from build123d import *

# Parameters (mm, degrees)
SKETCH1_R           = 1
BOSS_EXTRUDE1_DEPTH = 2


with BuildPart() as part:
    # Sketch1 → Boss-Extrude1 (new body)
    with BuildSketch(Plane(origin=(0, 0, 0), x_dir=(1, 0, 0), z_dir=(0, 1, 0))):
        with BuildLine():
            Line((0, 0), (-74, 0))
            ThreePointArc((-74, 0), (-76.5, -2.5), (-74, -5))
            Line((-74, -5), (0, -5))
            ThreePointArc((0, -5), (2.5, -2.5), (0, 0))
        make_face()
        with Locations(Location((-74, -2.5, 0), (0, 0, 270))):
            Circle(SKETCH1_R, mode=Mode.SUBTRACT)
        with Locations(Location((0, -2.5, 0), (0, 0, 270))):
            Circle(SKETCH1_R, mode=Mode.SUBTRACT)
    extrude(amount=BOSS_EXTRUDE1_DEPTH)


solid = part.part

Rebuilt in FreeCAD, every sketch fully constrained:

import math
import FreeCAD as App
import Part
import Sketcher

V = App.Vector

doc = App.newDocument("Part")
body = doc.addObject("PartDesign::Body", "Body")

# Sketch on XZ plane
sketch1 = body.newObject("Sketcher::SketchObject", "Sketch")
sketch1.AttachmentSupport = (doc.getObject("XZ_Plane"), [""])
sketch1.MapMode = "FlatFace"
sketch1.addGeometry(Part.LineSegment(V(0, 0, 0), V(-74, 0, 0)), False)
sketch1.addGeometry(Part.ArcOfCircle(Part.Circle(V(-74, 2.5, 0), V(0, 0, 1), 2.5), math.radians(90), math.radians(270)), False)
sketch1.addGeometry(Part.LineSegment(V(-74, 5, 0), V(0, 5, 0)), False)
sketch1.addGeometry(Part.ArcOfCircle(Part.Circle(V(0, 2.5, 0), V(0, 0, 1), 2.5), math.radians(-90), math.radians(90)), False)
sketch1.addGeometry(Part.Circle(V(-74, 2.5, 0), V(0, 0, 1), 1), False)
sketch1.addGeometry(Part.Circle(V(0, 2.5, 0), V(0, 0, 1), 1), False)
sketch1.addConstraint(Sketcher.Constraint("Tangent", 0, 2, 1, 2))
sketch1.addConstraint(Sketcher.Constraint("Tangent", 1, 1, 2, 1))
sketch1.addConstraint(Sketcher.Constraint("Tangent", 2, 2, 3, 2))
sketch1.addConstraint(Sketcher.Constraint("Tangent", 3, 1, 0, 1))
sketch1.addConstraint(Sketcher.Constraint("Horizontal", 0))
sketch1.addConstraint(Sketcher.Constraint("Horizontal", 2))
sketch1.addConstraint(Sketcher.Constraint("Coincident", 3, 1, -1, 1))
sketch1.addConstraint(Sketcher.Constraint("Coincident", 4, 3, 1, 3))
sketch1.addConstraint(Sketcher.Constraint("Coincident", 5, 3, 3, 3))
sketch1.addConstraint(Sketcher.Constraint("Equal", 4, 5))
sketch1.addConstraint(Sketcher.Constraint("Diameter", 4, 2.0))
sketch1.addConstraint(Sketcher.Constraint("Radius", 1, 2.5))
sketch1.addConstraint(Sketcher.Constraint("DistanceX", 0, 2, 0, 1, 74.0))
pad1 = body.newObject("PartDesign::Pad", "Pad")
pad1.Profile = sketch1
pad1.Length = 2
pad1.Reversed = True

doc.recompute()
